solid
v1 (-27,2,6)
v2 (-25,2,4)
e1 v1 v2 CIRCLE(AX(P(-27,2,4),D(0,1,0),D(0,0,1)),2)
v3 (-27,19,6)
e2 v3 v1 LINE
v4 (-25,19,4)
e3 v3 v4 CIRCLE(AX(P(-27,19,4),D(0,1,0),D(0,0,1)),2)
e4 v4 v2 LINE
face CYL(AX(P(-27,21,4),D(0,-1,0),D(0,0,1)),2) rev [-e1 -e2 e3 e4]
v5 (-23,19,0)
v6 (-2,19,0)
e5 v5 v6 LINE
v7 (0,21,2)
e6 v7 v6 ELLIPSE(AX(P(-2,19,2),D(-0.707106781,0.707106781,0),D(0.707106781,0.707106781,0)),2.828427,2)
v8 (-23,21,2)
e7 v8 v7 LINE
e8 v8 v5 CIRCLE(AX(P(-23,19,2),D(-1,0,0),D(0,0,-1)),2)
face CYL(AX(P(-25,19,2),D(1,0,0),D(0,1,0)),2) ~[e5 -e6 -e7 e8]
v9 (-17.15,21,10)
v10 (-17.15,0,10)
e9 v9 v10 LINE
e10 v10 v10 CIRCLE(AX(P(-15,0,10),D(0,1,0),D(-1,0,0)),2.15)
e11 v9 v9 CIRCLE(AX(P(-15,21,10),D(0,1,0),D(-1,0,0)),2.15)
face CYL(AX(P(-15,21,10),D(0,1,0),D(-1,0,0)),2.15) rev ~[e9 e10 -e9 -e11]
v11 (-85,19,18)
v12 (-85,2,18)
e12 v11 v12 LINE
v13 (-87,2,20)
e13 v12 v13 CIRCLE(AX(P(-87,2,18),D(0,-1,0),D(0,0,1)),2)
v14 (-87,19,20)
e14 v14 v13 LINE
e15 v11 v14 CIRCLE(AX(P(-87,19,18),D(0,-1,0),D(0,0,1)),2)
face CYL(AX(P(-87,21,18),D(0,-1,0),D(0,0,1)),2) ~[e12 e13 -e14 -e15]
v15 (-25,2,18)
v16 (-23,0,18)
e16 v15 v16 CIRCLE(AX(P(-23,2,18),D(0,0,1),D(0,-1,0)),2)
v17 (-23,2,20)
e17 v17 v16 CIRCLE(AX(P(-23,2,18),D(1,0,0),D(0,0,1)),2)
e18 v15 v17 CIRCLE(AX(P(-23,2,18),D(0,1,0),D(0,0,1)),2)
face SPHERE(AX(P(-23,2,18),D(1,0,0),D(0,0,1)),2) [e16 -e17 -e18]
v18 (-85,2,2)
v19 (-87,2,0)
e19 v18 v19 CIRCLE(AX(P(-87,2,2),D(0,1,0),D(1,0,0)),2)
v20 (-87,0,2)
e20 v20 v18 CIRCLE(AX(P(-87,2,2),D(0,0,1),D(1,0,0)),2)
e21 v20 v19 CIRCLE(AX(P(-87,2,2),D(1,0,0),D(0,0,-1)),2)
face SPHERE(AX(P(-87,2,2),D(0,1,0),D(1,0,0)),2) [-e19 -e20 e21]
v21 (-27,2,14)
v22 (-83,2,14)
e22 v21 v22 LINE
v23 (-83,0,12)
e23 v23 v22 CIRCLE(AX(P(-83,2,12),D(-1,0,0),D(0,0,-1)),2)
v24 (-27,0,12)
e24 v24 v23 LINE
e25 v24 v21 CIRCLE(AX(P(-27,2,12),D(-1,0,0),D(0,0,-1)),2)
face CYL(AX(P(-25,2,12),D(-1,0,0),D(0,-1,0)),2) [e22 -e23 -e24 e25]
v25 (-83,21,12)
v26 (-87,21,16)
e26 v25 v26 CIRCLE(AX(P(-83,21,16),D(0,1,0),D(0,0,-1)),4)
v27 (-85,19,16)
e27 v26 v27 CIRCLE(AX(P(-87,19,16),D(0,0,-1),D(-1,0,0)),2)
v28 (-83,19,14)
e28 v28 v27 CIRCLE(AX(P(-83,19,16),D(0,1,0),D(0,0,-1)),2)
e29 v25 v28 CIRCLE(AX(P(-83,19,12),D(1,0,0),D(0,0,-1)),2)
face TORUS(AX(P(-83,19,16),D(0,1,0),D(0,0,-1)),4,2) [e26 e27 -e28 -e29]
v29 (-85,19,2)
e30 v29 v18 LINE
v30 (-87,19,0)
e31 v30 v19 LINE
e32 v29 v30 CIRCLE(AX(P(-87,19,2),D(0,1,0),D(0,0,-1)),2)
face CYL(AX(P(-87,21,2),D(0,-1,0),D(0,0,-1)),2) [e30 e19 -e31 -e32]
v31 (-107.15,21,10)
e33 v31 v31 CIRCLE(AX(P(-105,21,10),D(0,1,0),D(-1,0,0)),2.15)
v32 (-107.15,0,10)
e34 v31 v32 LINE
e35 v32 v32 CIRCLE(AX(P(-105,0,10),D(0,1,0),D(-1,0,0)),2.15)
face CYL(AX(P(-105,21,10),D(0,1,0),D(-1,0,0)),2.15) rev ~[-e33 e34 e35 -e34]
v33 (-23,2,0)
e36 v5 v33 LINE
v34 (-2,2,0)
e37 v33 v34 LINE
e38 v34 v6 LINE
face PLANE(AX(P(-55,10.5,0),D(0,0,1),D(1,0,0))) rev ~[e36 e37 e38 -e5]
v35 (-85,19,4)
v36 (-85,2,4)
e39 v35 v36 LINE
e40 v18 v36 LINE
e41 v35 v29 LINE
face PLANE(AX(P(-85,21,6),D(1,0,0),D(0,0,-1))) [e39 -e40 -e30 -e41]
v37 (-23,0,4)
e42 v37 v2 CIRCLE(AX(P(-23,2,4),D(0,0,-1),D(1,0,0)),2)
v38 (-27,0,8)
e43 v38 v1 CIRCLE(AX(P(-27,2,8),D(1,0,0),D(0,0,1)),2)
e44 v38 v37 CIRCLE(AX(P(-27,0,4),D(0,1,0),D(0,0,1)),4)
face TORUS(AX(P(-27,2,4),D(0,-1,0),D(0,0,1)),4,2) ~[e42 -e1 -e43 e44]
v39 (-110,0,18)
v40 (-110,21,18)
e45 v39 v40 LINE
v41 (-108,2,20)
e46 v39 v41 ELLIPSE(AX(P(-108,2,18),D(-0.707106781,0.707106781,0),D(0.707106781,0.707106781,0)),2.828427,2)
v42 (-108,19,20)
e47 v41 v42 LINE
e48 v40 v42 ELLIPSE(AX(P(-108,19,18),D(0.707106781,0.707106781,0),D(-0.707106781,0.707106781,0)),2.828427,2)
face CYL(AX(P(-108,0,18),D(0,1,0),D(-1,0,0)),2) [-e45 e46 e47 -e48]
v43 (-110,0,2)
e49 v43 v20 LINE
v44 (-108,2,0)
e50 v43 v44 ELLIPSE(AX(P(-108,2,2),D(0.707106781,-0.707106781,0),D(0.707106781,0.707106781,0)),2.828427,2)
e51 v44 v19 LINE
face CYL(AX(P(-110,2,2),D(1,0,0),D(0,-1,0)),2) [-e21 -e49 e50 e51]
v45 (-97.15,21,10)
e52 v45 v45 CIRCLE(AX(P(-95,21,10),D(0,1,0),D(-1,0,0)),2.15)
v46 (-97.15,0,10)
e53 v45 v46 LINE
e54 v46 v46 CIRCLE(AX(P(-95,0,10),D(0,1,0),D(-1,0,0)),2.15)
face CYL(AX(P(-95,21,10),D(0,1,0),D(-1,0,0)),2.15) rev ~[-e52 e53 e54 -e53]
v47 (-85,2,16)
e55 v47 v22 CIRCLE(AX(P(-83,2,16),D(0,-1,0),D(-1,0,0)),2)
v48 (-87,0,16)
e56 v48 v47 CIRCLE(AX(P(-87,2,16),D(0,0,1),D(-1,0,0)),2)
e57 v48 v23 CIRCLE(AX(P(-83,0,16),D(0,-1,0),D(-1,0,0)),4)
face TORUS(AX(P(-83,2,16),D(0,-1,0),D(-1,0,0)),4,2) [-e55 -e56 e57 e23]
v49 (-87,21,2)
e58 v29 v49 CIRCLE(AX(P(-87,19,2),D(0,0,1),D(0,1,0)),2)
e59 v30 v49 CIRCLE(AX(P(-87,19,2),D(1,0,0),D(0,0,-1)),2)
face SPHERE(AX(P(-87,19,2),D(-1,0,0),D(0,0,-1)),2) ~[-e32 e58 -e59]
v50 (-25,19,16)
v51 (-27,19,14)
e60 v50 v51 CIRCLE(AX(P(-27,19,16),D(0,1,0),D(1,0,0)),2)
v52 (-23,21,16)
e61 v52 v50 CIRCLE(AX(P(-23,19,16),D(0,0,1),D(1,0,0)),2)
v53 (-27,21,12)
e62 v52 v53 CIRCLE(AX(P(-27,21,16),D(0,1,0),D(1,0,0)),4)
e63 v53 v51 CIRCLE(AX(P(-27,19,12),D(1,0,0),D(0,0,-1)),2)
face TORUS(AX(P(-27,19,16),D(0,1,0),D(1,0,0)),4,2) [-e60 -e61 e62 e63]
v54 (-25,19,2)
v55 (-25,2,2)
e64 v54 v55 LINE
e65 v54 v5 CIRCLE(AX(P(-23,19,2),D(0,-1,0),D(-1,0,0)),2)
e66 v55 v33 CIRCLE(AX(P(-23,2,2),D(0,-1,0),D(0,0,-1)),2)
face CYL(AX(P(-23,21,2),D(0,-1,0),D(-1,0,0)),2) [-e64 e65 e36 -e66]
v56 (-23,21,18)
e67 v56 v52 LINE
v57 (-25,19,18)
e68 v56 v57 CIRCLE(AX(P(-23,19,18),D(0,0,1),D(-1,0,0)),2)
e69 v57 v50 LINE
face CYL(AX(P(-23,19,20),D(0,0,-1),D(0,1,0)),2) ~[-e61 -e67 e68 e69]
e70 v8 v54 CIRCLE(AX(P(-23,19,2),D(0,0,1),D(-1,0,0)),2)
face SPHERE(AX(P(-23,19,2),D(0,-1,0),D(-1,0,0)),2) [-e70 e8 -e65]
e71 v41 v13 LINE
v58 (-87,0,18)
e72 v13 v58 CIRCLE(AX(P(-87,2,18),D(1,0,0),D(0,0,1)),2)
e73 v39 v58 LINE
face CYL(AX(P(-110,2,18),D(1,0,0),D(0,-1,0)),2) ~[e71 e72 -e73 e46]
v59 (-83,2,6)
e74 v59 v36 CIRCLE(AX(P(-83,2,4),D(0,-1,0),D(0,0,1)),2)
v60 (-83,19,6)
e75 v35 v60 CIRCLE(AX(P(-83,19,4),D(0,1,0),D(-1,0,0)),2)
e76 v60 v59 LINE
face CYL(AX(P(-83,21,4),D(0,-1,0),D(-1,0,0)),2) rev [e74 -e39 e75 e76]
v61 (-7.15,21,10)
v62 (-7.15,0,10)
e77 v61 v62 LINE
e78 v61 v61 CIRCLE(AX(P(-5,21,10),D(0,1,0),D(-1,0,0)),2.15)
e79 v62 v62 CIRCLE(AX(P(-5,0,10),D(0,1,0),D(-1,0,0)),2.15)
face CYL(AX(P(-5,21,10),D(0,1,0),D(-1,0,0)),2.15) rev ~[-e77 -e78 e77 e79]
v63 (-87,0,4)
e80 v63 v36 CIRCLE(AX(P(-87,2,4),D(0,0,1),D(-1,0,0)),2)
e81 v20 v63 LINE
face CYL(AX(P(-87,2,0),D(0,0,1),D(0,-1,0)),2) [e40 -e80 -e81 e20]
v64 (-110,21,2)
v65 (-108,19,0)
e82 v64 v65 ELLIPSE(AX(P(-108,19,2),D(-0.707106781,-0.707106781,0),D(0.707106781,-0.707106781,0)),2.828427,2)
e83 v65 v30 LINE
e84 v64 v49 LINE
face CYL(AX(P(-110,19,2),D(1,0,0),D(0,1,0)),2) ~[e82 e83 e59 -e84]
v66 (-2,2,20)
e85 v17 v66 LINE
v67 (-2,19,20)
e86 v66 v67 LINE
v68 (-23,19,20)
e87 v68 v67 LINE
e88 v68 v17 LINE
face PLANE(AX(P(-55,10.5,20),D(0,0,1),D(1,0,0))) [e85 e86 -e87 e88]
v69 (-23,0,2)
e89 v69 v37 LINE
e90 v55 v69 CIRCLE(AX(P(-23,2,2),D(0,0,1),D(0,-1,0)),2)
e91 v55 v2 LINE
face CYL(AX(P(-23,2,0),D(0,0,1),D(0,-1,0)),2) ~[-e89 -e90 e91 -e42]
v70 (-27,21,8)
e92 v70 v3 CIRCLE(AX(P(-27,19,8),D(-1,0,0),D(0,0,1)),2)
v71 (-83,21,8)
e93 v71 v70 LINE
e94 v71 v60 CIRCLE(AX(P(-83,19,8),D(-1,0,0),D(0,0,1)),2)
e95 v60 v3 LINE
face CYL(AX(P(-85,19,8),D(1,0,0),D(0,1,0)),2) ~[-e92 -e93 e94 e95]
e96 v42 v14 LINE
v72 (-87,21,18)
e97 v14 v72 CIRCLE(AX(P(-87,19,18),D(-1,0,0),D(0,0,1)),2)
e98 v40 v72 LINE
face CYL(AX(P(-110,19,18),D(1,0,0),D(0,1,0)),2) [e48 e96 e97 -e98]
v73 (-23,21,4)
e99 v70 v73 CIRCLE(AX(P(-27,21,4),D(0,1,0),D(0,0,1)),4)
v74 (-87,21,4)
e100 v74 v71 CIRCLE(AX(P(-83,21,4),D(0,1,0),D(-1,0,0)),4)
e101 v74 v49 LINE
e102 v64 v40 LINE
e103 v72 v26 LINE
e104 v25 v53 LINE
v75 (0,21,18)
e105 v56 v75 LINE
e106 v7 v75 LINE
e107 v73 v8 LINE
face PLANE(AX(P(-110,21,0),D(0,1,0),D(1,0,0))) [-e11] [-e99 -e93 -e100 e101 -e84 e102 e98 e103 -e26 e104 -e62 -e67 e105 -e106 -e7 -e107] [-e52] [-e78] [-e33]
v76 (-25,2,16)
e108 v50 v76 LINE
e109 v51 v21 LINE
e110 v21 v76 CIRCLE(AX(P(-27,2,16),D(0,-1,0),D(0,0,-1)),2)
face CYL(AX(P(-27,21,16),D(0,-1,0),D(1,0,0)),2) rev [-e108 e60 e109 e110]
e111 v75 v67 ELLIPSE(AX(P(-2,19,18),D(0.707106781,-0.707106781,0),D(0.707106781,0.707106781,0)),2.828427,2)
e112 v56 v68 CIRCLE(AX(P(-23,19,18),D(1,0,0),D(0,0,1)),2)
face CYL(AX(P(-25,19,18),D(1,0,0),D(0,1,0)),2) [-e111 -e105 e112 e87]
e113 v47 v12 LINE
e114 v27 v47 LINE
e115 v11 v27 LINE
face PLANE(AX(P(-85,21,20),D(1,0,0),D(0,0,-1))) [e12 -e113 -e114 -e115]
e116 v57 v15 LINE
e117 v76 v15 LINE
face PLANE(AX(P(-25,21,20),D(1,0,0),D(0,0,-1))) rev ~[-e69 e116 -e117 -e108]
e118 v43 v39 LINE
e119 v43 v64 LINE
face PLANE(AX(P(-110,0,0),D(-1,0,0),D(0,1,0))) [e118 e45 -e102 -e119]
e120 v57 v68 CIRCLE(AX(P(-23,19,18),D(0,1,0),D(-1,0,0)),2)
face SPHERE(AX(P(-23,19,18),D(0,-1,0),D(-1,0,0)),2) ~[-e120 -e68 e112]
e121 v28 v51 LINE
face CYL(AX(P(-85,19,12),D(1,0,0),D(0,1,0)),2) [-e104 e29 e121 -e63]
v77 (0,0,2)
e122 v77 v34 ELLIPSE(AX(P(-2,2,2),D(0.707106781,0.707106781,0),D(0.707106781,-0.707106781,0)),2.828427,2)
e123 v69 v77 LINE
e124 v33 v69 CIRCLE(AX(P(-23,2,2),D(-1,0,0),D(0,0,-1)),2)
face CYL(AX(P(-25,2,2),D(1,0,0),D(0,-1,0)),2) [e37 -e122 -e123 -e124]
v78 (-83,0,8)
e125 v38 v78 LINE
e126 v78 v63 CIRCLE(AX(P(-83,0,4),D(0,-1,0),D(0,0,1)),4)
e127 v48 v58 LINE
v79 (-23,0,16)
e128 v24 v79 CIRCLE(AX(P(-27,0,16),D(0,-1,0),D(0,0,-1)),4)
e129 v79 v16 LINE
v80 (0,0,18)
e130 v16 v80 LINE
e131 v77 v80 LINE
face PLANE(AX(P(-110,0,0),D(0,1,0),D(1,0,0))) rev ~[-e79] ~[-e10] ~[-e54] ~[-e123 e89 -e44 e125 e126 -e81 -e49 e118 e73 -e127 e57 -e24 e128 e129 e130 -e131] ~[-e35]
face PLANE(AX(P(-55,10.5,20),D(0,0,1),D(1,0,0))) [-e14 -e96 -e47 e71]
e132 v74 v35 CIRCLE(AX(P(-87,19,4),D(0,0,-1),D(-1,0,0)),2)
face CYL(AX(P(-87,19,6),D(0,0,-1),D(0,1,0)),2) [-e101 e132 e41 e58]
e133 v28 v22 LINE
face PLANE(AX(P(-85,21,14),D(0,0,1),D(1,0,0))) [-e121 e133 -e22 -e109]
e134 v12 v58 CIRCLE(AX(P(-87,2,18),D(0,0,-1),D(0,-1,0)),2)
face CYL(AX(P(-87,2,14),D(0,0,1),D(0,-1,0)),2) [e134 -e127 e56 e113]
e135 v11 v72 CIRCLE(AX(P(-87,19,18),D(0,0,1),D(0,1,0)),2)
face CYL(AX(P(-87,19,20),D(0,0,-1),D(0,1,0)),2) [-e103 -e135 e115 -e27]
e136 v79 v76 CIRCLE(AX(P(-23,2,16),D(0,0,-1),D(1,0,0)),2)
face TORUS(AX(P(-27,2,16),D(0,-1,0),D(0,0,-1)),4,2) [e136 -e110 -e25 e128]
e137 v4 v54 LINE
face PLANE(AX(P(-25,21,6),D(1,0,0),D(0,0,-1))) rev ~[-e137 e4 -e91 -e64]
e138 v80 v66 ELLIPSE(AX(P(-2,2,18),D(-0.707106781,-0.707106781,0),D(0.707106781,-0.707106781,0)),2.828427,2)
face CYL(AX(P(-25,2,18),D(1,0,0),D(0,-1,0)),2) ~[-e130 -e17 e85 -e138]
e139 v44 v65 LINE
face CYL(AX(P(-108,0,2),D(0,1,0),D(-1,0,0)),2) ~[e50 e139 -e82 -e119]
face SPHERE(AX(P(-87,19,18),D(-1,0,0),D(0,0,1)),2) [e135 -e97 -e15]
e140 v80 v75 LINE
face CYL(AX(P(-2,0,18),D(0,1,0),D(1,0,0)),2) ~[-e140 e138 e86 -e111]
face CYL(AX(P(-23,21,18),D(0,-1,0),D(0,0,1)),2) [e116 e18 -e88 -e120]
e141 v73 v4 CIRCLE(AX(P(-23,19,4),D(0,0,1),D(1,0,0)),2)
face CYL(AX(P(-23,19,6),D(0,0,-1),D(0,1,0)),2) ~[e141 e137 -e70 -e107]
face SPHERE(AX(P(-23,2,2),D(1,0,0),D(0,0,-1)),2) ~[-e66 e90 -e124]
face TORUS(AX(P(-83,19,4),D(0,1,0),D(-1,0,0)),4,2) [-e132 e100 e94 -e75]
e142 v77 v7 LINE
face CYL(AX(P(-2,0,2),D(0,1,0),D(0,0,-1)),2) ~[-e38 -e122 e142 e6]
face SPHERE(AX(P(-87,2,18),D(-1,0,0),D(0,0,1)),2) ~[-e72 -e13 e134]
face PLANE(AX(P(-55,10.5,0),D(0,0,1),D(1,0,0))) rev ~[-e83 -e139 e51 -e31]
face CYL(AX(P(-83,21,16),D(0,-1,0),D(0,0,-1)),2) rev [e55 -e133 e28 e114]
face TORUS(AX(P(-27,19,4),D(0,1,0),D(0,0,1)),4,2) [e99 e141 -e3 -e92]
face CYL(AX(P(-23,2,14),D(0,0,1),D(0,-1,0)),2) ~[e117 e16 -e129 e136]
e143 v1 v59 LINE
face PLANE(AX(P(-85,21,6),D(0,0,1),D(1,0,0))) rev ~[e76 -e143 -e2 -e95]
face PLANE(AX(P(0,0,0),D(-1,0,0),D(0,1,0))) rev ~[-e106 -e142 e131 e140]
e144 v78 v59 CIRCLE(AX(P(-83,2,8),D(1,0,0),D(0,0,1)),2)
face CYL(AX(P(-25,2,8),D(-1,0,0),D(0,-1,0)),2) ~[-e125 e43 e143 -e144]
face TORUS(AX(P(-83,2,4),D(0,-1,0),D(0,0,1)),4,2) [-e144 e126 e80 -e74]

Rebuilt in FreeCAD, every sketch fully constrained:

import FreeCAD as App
import Part
import Sketcher


def edges_at(feature, points):
    """Names of the edges that pass closest to the given points."""
    edges = feature.Shape.Edges
    near = lambda p: min(range(len(edges)), key=lambda i: edges[i].distToShape(Part.Vertex(*p))[0])
    return sorted({f"Edge{near(p) + 1}" for p in points})

doc = App.newDocument("Part")
body = doc.addObject("PartDesign::Body", "Body")

# Sketch on XY plane
sketch1 = body.newObject("Sketcher::SketchObject", "Sketch")
sketch1.AttachmentSupport = (doc.getObject("XY_Plane"), [""])
sketch1.MapMode = "FlatFace"
sketch1.addGeometry([
    Part.LineSegment(App.Vector(-110, 21, 0), App.Vector(-110, 0, 0)),
    Part.LineSegment(App.Vector(-110, 0, 0), App.Vector(0, 0, 0)),
    Part.LineSegment(App.Vector(0, 0, 0), App.Vector(0, 21, 0)),
    Part.LineSegment(App.Vector(0, 21, 0), App.Vector(-110, 21, 0)),
], False)
sketch1.addConstraint([
    Sketcher.Constraint("Coincident", 0, 2, 1, 1),
    Sketcher.Constraint("Coincident", 1, 2, 2, 1),
    Sketcher.Constraint("Coincident", 2, 2, 3, 1),
    Sketcher.Constraint("Coincident", 3, 2, 0, 1),
    Sketcher.Constraint("Vertical", 0),
    Sketcher.Constraint("Horizontal", 1),
    Sketcher.Constraint("Vertical", 2),
    Sketcher.Constraint("Horizontal", 3),
    Sketcher.Constraint("Coincident", 1, 2, -1, 1),
    Sketcher.Constraint("DistanceX", 1, 1, 1, 2, 110.0),
    Sketcher.Constraint("DistanceY", 0, 2, 0, 1, 21.0),
])
pad1 = body.newObject("PartDesign::Pad", "Pad")
pad1.Profile = sketch1
pad1.Length = 20

# Sketch on XZ plane
sketch2 = body.newObject("Sketcher::SketchObject", "Sketch001")
sketch2.AttachmentSupport = (doc.getObject("XZ_Plane"), [""])
sketch2.MapMode = "FlatFace"
sketch2.AttachmentOffset = App.Placement(App.Vector(0, 0, -21), App.Rotation())
sketch2.addGeometry(Part.Circle(App.Vector(-15, 10, 0), App.Vector(0, 0, 1), 2.1), False)
sketch2.addConstraint([
    Sketcher.Constraint("Diameter", 0, 4.3),
    Sketcher.Constraint("DistanceX", 0, 3, -1, 1, 15.0),
    Sketcher.Constraint("DistanceY", -1, 1, 0, 3, 10.0),
])
pocket1 = body.newObject("PartDesign::Pocket", "Pocket")
pocket1.Profile = sketch2
pocket1.Type = "UpToFirst"
pocket1.Reversed = True

# Sketch on XZ plane
sketch3 = body.newObject("Sketcher::SketchObject", "Sketch002")
sketch3.AttachmentSupport = (doc.getObject("XZ_Plane"), [""])
sketch3.MapMode = "FlatFace"
sketch3.AttachmentOffset = App.Placement(App.Vector(0, 0, -21), App.Rotation())
sketch3.addGeometry(Part.Circle(App.Vector(-5, 10, 0), App.Vector(0, 0, 1), 2.1), False)
sketch3.addConstraint([
    Sketcher.Constraint("Diameter", 0, 4.3),
    Sketcher.Constraint("DistanceX", 0, 3, -1, 1, 5.0),
    Sketcher.Constraint("DistanceY", -1, 1, 0, 3, 10.0),
])
pocket2 = body.newObject("PartDesign::Pocket", "Pocket001")
pocket2.Profile = sketch3
pocket2.Type = "UpToFirst"
pocket2.Reversed = True

# Sketch on XZ plane
sketch4 = body.newObject("Sketcher::SketchObject", "Sketch003")
sketch4.AttachmentSupport = (doc.getObject("XZ_Plane"), [""])
sketch4.MapMode = "FlatFace"
sketch4.AttachmentOffset = App.Placement(App.Vector(0, 0, -21), App.Rotation())
sketch4.addGeometry(Part.Circle(App.Vector(-105, 10, 0), App.Vector(0, 0, 1), 2.1), False)
sketch4.addConstraint([
    Sketcher.Constraint("Diameter", 0, 4.3),
    Sketcher.Constraint("DistanceX", 0, 3, -1, 1, 105.0),
    Sketcher.Constraint("DistanceY", -1, 1, 0, 3, 10.0),
])
pocket3 = body.newObject("PartDesign::Pocket", "Pocket002")
pocket3.Profile = sketch4
pocket3.Type = "UpToFirst"
pocket3.Reversed = True

# Sketch on XZ plane
sketch5 = body.newObject("Sketcher::SketchObject", "Sketch004")
sketch5.AttachmentSupport = (doc.getObject("XZ_Plane"), [""])
sketch5.MapMode = "FlatFace"
sketch5.AttachmentOffset = App.Placement(App.Vector(0, 0, -21), App.Rotation())
sketch5.addGeometry(Part.Circle(App.Vector(-95, 10, 0), App.Vector(0, 0, 1), 2.1), False)
sketch5.addConstraint([
    Sketcher.Constraint("Diameter", 0, 4.3),
    Sketcher.Constraint("DistanceX", 0, 3, -1, 1, 95.0),
    Sketcher.Constraint("DistanceY", -1, 1, 0, 3, 10.0),
])
pocket4 = body.newObject("PartDesign::Pocket", "Pocket003")
pocket4.Profile = sketch5
pocket4.Type = "UpToFirst"
pocket4.Reversed = True

# Sketch on XZ plane
sketch6 = body.newObject("Sketcher::SketchObject", "Sketch005")
sketch6.AttachmentSupport = (doc.getObject("XZ_Plane"), [""])
sketch6.MapMode = "FlatFace"
sketch6.AttachmentOffset = App.Placement(App.Vector(0, 0, -21), App.Rotation())
sketch6.addGeometry([
    Part.LineSegment(App.Vector(-85, 0, 0), App.Vector(-85, 6, 0)),
    Part.LineSegment(App.Vector(-85, 6, 0), App.Vector(-25, 6, 0)),
    Part.LineSegment(App.Vector(-25, 6, 0), App.Vector(-25, 0, 0)),
    Part.LineSegment(App.Vector(-25, 0, 0), App.Vector(-85, 0, 0)),
], False)
sketch6.addConstraint([
    Sketcher.Constraint("Coincident", 0, 2, 1, 1),
    Sketcher.Constraint("Coincident", 1, 2, 2, 1),
    Sketcher.Constraint("Coincident", 2, 2, 3, 1),
    Sketcher.Constraint("Coincident", 3, 2, 0, 1),
    Sketcher.Constraint("Vertical", 0),
    Sketcher.Constraint("Horizontal", 1),
    Sketcher.Constraint("Vertical", 2),
    Sketcher.Constraint("Horizontal", 3),
    Sketcher.Constraint("PointOnObject", 2, 2, -1),
    Sketcher.Constraint("DistanceX", 1, 1, 1, 2, 60.0),
    Sketcher.Constraint("DistanceY", 0, 1, 0, 2, 6.0),
    Sketcher.Constraint("DistanceX", 0, 2, -1, 1, 85.0),
])
pocket5 = body.newObject("PartDesign::Pocket", "Pocket004")
pocket5.Profile = sketch6
pocket5.Type = "UpToFirst"
pocket5.Reversed = True

# Sketch on XZ plane
sketch7 = body.newObject("Sketcher::SketchObject", "Sketch006")
sketch7.AttachmentSupport = (doc.getObject("XZ_Plane"), [""])
sketch7.MapMode = "FlatFace"
sketch7.AttachmentOffset = App.Placement(App.Vector(0, 0, -21), App.Rotation())
sketch7.addGeometry([
    Part.LineSegment(App.Vector(-85, 14, 0), App.Vector(-85, 20, 0)),
    Part.LineSegment(App.Vector(-85, 20, 0), App.Vector(-25, 20, 0)),
    Part.LineSegment(App.Vector(-25, 20, 0), App.Vector(-25, 14, 0)),
    Part.LineSegment(App.Vector(-25, 14, 0), App.Vector(-85, 14, 0)),
], False)
sketch7.addConstraint([
    Sketcher.Constraint("Coincident", 0, 2, 1, 1),
    Sketcher.Constraint("Coincident", 1, 2, 2, 1),
    Sketcher.Constraint("Coincident", 2, 2, 3, 1),
    Sketcher.Constraint("Coincident", 3, 2, 0, 1),
    Sketcher.Constraint("Vertical", 0),
    Sketcher.Constraint("Horizontal", 1),
    Sketcher.Constraint("Vertical", 2),
    Sketcher.Constraint("Horizontal", 3),
    Sketcher.Constraint("DistanceX", 1, 1, 1, 2, 60.0),
    Sketcher.Constraint("DistanceY", 0, 1, 0, 2, 6.0),
    Sketcher.Constraint("DistanceX", 0, 2, -1, 1, 85.0),
    Sketcher.Constraint("DistanceY", -1, 1, 0, 2, 20.0),
])
pocket6 = body.newObject("PartDesign::Pocket", "Pocket005")
pocket6.Profile = sketch7
pocket6.Type = "UpToFirst"
pocket6.Reversed = True
doc.recompute()

fillet = body.newObject("PartDesign::Fillet", "Fillet")
fillet.Base = (pocket6, edges_at(pocket6, [
    (-110, 10.5, 20),
    (-97.5, 0, 20),
    (-12.5, 0, 0),
    (-97.5, 21, 0),
    (-97.5, 21, 20),
    (-12.5, 0, 20),
    (-85, 10.5, 6),
    (-85, 10.5, 0),
    (-25, 10.5, 0),
    (-25, 10.5, 6),
    (-85, 21, 3),
    (-55, 21, 6),
    (-25, 21, 3),
    (-55, 0, 6),
    (-85, 0, 3),
    (-25, 0, 3),
    (-25, 10.5, 20),
    (-85, 10.5, 20),
    (-85, 10.5, 14),
    (-25, 10.5, 14),
    (0, 10.5, 20),
    (-97.5, 0, 0),
    (-25, 21, 17),
    (-55, 21, 14),
    (-85, 21, 17),
    (-85, 0, 17),
    (-55, 0, 14),
    (-25, 0, 17),
    (-110, 10.5, 0),
    (-12.5, 21, 0),
    (0, 10.5, 0),
    (-12.5, 21, 20),
]))
fillet.Radius = 2

doc.recompute()
